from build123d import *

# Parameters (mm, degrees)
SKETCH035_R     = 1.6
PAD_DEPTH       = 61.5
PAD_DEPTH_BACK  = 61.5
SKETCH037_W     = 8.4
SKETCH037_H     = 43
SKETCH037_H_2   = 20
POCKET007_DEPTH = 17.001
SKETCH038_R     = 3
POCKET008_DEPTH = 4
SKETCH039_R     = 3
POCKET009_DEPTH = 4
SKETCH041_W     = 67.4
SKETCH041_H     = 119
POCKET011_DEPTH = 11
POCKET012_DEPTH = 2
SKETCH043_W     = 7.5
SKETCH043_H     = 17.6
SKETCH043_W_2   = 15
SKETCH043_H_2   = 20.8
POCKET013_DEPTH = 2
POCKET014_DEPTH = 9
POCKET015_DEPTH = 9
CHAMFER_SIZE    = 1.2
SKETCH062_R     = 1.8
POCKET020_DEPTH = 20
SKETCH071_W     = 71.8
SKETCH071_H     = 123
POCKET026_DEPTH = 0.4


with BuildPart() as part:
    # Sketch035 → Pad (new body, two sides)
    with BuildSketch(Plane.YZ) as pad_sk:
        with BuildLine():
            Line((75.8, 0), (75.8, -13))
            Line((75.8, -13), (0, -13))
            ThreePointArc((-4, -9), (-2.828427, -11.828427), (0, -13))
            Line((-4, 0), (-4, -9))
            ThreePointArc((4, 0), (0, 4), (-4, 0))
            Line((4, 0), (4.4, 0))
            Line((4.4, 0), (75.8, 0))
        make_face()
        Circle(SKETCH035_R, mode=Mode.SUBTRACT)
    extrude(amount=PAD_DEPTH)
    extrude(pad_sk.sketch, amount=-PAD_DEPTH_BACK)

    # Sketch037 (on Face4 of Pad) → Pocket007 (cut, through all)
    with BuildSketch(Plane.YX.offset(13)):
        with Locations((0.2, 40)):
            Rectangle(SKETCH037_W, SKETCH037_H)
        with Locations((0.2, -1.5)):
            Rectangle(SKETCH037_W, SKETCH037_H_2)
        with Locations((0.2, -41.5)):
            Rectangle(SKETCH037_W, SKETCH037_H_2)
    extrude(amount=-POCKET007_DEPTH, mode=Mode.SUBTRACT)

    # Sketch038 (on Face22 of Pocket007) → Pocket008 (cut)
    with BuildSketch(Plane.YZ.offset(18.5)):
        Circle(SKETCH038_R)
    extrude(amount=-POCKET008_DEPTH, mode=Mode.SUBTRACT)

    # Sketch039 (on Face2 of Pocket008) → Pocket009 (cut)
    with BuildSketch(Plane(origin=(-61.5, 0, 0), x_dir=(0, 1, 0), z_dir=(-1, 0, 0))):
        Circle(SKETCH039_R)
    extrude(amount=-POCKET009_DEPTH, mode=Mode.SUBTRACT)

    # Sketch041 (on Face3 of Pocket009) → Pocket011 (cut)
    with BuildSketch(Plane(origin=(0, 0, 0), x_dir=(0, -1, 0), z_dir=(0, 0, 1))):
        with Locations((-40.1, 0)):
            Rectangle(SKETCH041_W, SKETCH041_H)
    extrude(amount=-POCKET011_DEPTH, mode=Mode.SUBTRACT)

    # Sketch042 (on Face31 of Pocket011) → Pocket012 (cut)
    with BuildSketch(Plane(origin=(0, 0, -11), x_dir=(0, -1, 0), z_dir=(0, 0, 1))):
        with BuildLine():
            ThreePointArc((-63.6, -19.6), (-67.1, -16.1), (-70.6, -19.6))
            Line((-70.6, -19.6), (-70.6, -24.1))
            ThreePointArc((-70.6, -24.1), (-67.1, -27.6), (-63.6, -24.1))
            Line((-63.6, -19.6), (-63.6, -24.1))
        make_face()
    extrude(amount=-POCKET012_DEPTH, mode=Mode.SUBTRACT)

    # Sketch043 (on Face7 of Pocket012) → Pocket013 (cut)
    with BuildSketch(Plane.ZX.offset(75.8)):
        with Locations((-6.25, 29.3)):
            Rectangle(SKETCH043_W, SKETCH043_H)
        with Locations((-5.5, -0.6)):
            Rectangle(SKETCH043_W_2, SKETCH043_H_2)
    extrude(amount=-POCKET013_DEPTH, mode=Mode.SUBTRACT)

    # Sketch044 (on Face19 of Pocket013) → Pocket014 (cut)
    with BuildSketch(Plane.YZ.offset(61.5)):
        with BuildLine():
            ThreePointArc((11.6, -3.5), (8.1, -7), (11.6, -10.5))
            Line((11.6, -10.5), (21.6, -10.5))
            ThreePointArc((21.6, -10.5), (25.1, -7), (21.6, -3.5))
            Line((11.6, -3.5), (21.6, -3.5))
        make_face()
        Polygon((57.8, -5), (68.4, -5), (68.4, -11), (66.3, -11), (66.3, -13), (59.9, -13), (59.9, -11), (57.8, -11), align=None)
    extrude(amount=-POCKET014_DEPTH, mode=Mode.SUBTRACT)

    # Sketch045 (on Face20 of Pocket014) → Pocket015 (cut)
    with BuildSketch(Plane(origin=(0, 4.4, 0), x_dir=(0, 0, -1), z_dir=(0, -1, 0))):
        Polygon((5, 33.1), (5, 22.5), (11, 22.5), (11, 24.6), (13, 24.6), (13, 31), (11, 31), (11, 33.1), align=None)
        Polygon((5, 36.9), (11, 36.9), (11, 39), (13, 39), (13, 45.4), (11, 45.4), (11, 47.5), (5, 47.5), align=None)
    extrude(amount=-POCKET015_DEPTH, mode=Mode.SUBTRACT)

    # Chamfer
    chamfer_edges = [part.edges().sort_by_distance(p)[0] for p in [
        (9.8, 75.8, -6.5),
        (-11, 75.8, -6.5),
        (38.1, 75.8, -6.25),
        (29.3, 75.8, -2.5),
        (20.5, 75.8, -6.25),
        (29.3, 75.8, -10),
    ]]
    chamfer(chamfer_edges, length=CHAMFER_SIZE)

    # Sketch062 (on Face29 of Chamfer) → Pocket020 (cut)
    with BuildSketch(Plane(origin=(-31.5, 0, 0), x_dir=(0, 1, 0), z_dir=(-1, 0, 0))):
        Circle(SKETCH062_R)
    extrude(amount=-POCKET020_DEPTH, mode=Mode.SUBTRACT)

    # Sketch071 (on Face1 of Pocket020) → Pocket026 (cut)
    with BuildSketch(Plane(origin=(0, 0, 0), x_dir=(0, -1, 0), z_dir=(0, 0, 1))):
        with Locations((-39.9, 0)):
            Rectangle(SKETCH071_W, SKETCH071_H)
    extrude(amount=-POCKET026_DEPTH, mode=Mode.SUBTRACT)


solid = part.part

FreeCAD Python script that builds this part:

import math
import FreeCAD as App
import Part
import Sketcher
from FreeCAD import Vector
Q = App.Units.Quantity


def edges_at(feature, points):
    """Names of the edges that pass closest to the given points."""
    edges = feature.Shape.Edges
    near = lambda p: min(range(len(edges)), key=lambda i: edges[i].distToShape(Part.Vertex(*p))[0])
    return sorted({f"Edge{near(p) + 1}" for p in points})

doc = App.newDocument("Part")
body = doc.addObject("PartDesign::Body", "Body")

# Sketch on YZ plane
sketch1 = body.newObject("Sketcher::SketchObject", "Sketch")
sketch1.AttachmentSupport = (doc.getObject("YZ_Plane"), [""])
sketch1.MapMode = "FlatFace"
sketch1.addGeometry([
    Part.LineSegment(Vector(75.8, -13, 0), Vector(75.8, 0, 0)),  # 0
    Part.LineSegment(Vector(75.8, 0, 0), Vector(4, 0, 0)),  # 1
    Part.ArcOfCircle(Part.Circle(Vector(0, 0, 0), Vector(0, 0, 1), 4), math.radians(0), math.radians(180)),  # 2
    Part.LineSegment(Vector(-4, 0, 0), Vector(-4, -9, 0)),  # 3
    Part.ArcOfCircle(Part.Circle(Vector(0, -9, 0), Vector(0, 0, 1), 4), math.radians(-179.999994), math.radians(-90.000006)),  # 4
    Part.LineSegment(Vector(0, -13, 0), Vector(75.8, -13, 0)),  # 5
    Part.Circle(Vector(0, 0, 0), Vector(0, 0, 1), 1.6),  # 6
], False)
sketch1.addConstraint([
    Sketcher.Constraint("Coincident", 0, 2, 1, 1),
    Sketcher.Constraint("Coincident", 1, 2, 2, 1),
    Sketcher.Constraint("Tangent", 2, 2, 3, 1),
    Sketcher.Constraint("Tangent", 3, 2, 4, 1),
    Sketcher.Constraint("Tangent", 4, 2, 5, 1),
    Sketcher.Constraint("Coincident", 5, 2, 0, 1),
    Sketcher.Constraint("Vertical", 0),
    Sketcher.Constraint("Horizontal", 1),
    Sketcher.Constraint("Vertical", 3),
    Sketcher.Constraint("Horizontal", 5),
    Sketcher.Constraint("Coincident", 2, 3, -1, 1),
    Sketcher.Constraint("Coincident", 6, 3, -1, 1),
    Sketcher.Constraint("Equal", 2, 4),
    Sketcher.Constraint("PointOnObject", 0, 2, -1),
    Sketcher.Constraint("Radius", 2, Q("4 mm")),
    Sketcher.Constraint("Diameter", 6, Q("3.2 mm")),
    Sketcher.Constraint("DistanceY", 0, 1, 0, 2, Q("13 mm")),
    Sketcher.Constraint("DistanceX", 1, 2, 1, 1, Q("71.8 mm")),
])
pad1 = body.newObject("PartDesign::Pad", "Pad")
pad1.Profile = sketch1
pad1.Type = "TwoLengths"
pad1.Length = 61.5
pad1.Length2 = 61.5

# Sketch on XY plane
sketch2 = body.newObject("Sketcher::SketchObject", "Sketch001")
sketch2.AttachmentSupport = (doc.getObject("XY_Plane"), [""])
sketch2.MapMode = "FlatFace"
sketch2.AttachmentOffset = App.Placement(Vector(0, 0, -13), App.Rotation())
sketch2.addGeometry([
    Part.LineSegment(Vector(61.5, -4, 0), Vector(18.5, -4, 0)),  # 0
    Part.LineSegment(Vector(18.5, -4, 0), Vector(18.5, 4.4, 0)),  # 1
    Part.LineSegment(Vector(18.5, 4.4, 0), Vector(61.5, 4.4, 0)),  # 2
    Part.LineSegment(Vector(61.5, 4.4, 0), Vector(61.5, -4, 0)),  # 3
    Part.LineSegment(Vector(8.5, -4, 0), Vector(-11.5, -4, 0)),  # 4
    Part.LineSegment(Vector(-11.5, -4, 0), Vector(-11.5, 4.4, 0)),  # 5
    Part.LineSegment(Vector(-11.5, 4.4, 0), Vector(8.5, 4.4, 0)),  # 6
    Part.LineSegment(Vector(8.5, 4.4, 0), Vector(8.5, -4, 0)),  # 7
    Part.LineSegment(Vector(-31.5, -4, 0), Vector(-51.5, -4, 0)),  # 8
    Part.LineSegment(Vector(-51.5, -4, 0), Vector(-51.5, 4.4, 0)),  # 9
    Part.LineSegment(Vector(-51.5, 4.4, 0), Vector(-31.5, 4.4, 0)),  # 10
    Part.LineSegment(Vector(-31.5, 4.4, 0), Vector(-31.5, -4, 0)),  # 11
], False)
sketch2.addConstraint([
    Sketcher.Constraint("Coincident", 0, 2, 1, 1),
    Sketcher.Constraint("Coincident", 1, 2, 2, 1),
    Sketcher.Constraint("Coincident", 2, 2, 3, 1),
    Sketcher.Constraint("Coincident", 3, 2, 0, 1),
    Sketcher.Constraint("Coincident", 4, 2, 5, 1),
    Sketcher.Constraint("Coincident", 5, 2, 6, 1),
    Sketcher.Constraint("Coincident", 6, 2, 7, 1),
    Sketcher.Constraint("Coincident", 7, 2, 4, 1),
    Sketcher.Constraint("Coincident", 8, 2, 9, 1),
    Sketcher.Constraint("Coincident", 9, 2, 10, 1),
    Sketcher.Constraint("Coincident", 10, 2, 11, 1),
    Sketcher.Constraint("Coincident", 11, 2, 8, 1),
    Sketcher.Constraint("Horizontal", 0),
    Sketcher.Constraint("Vertical", 1),
    Sketcher.Constraint("Horizontal", 2),
    Sketcher.Constraint("Vertical", 3),
    Sketcher.Constraint("Horizontal", 4),
    Sketcher.Constraint("Vertical", 5),
    Sketcher.Constraint("Horizontal", 6),
    Sketcher.Constraint("Vertical", 7),
    Sketcher.Constraint("Horizontal", 8),
    Sketcher.Constraint("Vertical", 9),
    Sketcher.Constraint("Horizontal", 10),
    Sketcher.Constraint("Vertical", 11),
    Sketcher.Constraint("Horizontal", 3, 2, 4, 2),
    Sketcher.Constraint("Horizontal", 2, 2, 5, 2),
    Sketcher.Constraint("Horizontal", 7, 2, 8, 2),
    Sketcher.Constraint("Horizontal", 6, 2, 9, 2),
    Sketcher.Constraint("Equal", 6, 8),
    Sketcher.Constraint("DistanceX", 0, 2, 0, 1, Q("43 mm")),
    Sketcher.Constraint("DistanceX", 4, 2, 4, 1, Q("20 mm")),
    Sketcher.Constraint("DistanceY", 1, 1, 1, 2, Q("8.4 mm")),
    Sketcher.Constraint("DistanceY", 0, 2, -1, 1, Q("4 mm")),
    Sketcher.Constraint("DistanceX", 4, 2, 0, 2, Q("30 mm")),
    Sketcher.Constraint("DistanceX", 8, 2, 4, 2, Q("40 mm")),
    Sketcher.Constraint("DistanceX", -1, 1, 0, 2, Q("18.5 mm")),
])
pocket1 = body.newObject("PartDesign::Pocket", "Pocket")
pocket1.Profile = sketch2
pocket1.Type = "ThroughAll"
pocket1.Reversed = True

# Sketch on YZ plane
sketch3 = body.newObject("Sketcher::SketchObject", "Sketch002")
sketch3.AttachmentSupport = (doc.getObject("YZ_Plane"), [""])
sketch3.MapMode = "FlatFace"
sketch3.AttachmentOffset = App.Placement(Vector(0, 0, 18.5), App.Rotation())
sketch3.addGeometry(Part.Circle(Vector(0, 0, 0), Vector(0, 0, 1), 3), False)
sketch3.addConstraint([
    Sketcher.Constraint("Coincident", 0, 3, -1, 1),
    Sketcher.Constraint("Diameter", 0, Q("6 mm")),
])
pocket2 = body.newObject("PartDesign::Pocket", "Pocket001")
pocket2.Profile = sketch3
pocket2.Length = 4

# Sketch on YZ plane
sketch4 = body.newObject("Sketcher::SketchObject", "Sketch003")
sketch4.AttachmentSupport = (doc.getObject("YZ_Plane"), [""])
sketch4.MapMode = "FlatFace"
sketch4.AttachmentOffset = App.Placement(Vector(0, 0, -61.5), App.Rotation())
sketch4.addGeometry(Part.Circle(Vector(0, 0, 0), Vector(0, 0, 1), 3), False)
sketch4.addConstraint([
    Sketcher.Constraint("Coincident", 0, 3, -1, 1),
    Sketcher.Constraint("Diameter", 0, Q("6 mm")),
])
pocket3 = body.newObject("PartDesign::Pocket", "Pocket002")
pocket3.Profile = sketch4
pocket3.Length = 4
pocket3.Reversed = True

# Sketch on XY plane
sketch5 = body.newObject("Sketcher::SketchObject", "Sketch004")
sketch5.AttachmentSupport = (doc.getObject("XY_Plane"), [""])
sketch5.MapMode = "FlatFace"
sketch5.addGeometry([
    Part.LineSegment(Vector(59.5, 73.8, 0), Vector(-59.5, 73.8, 0)),
    Part.LineSegment(Vector(-59.5, 73.8, 0), Vector(-59.5, 6.4, 0)),
    Part.LineSegment(Vector(-59.5, 6.4, 0), Vector(59.5, 6.4, 0)),
    Part.LineSegment(Vector(59.5, 6.4, 0), Vector(59.5, 73.8, 0)),
], False)
sketch5.addConstraint([
    Sketcher.Constraint("Coincident", 0, 2, 1, 1),
    Sketcher.Constraint("Coincident", 1, 2, 2, 1),
    Sketcher.Constraint("Coincident", 2, 2, 3, 1),
    Sketcher.Constraint("Coincident", 3, 2, 0, 1),
    Sketcher.Constraint("Horizontal", 0),
    Sketcher.Constraint("Vertical", 1),
    Sketcher.Constraint("Horizontal", 2),
    Sketcher.Constraint("Vertical", 3),
    Sketcher.Constraint("DistanceX", 0, 2, 0, 1, Q("119 mm")),
    Sketcher.Constraint("DistanceY", 1, 2, 1, 1, Q("67.4 mm")),
    Sketcher.Constraint("DistanceX", 0, 2, -1, 1, Q("59.5 mm")),
    Sketcher.Constraint("DistanceY", -1, 1, 0, 2, Q("73.8 mm")),
])
pocket4 = body.newObject("PartDesign::Pocket", "Pocket003")
pocket4.Profile = sketch5
pocket4.Length = 11

# Sketch on XY plane
sketch6 = body.newObject("Sketcher::SketchObject", "Sketch005")
sketch6.AttachmentSupport = (doc.getObject("XY_Plane"), [""])
sketch6.MapMode = "FlatFace"
sketch6.AttachmentOffset = App.Placement(Vector(0, 0, -11), App.Rotation())
sketch6.addGeometry([
    Part.ArcOfCircle(Part.Circle(Vector(-19.6, 67.1, 0), Vector(0, 0, 1), 3.5), math.radians(-90), math.radians(90)),
    Part.LineSegment(Vector(-19.6, 70.6, 0), Vector(-24.1, 70.6, 0)),
    Part.ArcOfCircle(Part.Circle(Vector(-24.1, 67.1, 0), Vector(0, 0, 1), 3.5), math.radians(90), math.radians(270)),
    Part.LineSegment(Vector(-24.1, 63.6, 0), Vector(-19.6, 63.6, 0)),
], False)
sketch6.addConstraint([
    Sketcher.Constraint("Tangent", 0, 2, 1, 1),
    Sketcher.Constraint("Tangent", 1, 2, 2, 1),
    Sketcher.Constraint("Tangent", 2, 2, 3, 1),
    Sketcher.Constraint("Tangent", 3, 2, 0, 1),
    Sketcher.Constraint("Horizontal", 1),
    Sketcher.Constraint("Horizontal", 3),
    Sketcher.Constraint("Radius", 0, Q("3.5 mm")),
    Sketcher.Constraint("DistanceX", 1, 2, 1, 1, Q("4.5 mm")),
    Sketcher.Constraint("DistanceX", 0, 3, -1, 1, Q("19.6 mm")),
    Sketcher.Constraint("DistanceY", -1, 1, 0, 3, Q("67.1 mm")),
])
pocket5 = body.newObject("PartDesign::Pocket", "Pocket004")
pocket5.Profile = sketch6
pocket5.Length = 2

# Sketch on XZ plane
sketch7 = body.newObject("Sketcher::SketchObject", "Sketch006")
sketch7.AttachmentSupport = (doc.getObject("XZ_Plane"), [""])
sketch7.MapMode = "FlatFace"
sketch7.AttachmentOffset = App.Placement(Vector(0, 0, -75.8), App.Rotation())
sketch7.addGeometry([
    Part.LineSegment(Vector(38.1, -10, 0), Vector(20.5, -10, 0)),  # 0
    Part.LineSegment(Vector(20.5, -10, 0), Vector(20.5, -2.5, 0)),  # 1
    Part.LineSegment(Vector(20.5, -2.5, 0), Vector(38.1, -2.5, 0)),  # 2
    Part.LineSegment(Vector(38.1, -2.5, 0), Vector(38.1, -10, 0)),  # 3
    Part.LineSegment(Vector(9.8, -13, 0), Vector(-11, -13, 0)),  # 4
    Part.LineSegment(Vector(-11, -13, 0), Vector(-11, 2, 0)),  # 5
    Part.LineSegment(Vector(-11, 2, 0), Vector(9.8, 2, 0)),  # 6
    Part.LineSegment(Vector(9.8, 2, 0), Vector(9.8, -13, 0)),  # 7
], False)
sketch7.addConstraint([
    Sketcher.Constraint("Coincident", 0, 2, 1, 1),
    Sketcher.Constraint("Coincident", 1, 2, 2, 1),
    Sketcher.Constraint("Coincident", 2, 2, 3, 1),
    Sketcher.Constraint("Coincident", 3, 2, 0, 1),
    Sketcher.Constraint("Coincident", 4, 2, 5, 1),
    Sketcher.Constraint("Coincident", 5, 2, 6, 1),
    Sketcher.Constraint("Coincident", 6, 2, 7, 1),
    Sketcher.Constraint("Coincident", 7, 2, 4, 1),
    Sketcher.Constraint("Horizontal", 0),
    Sketcher.Constraint("Vertical", 1),
    Sketcher.Constraint("Horizontal", 2),
    Sketcher.Constraint("Vertical", 3),
    Sketcher.Constraint("Horizontal", 4),
    Sketcher.Constraint("Vertical", 5),
    Sketcher.Constraint("Horizontal", 6),
    Sketcher.Constraint("Vertical", 7),
    Sketcher.Constraint("DistanceY", 5, 1, 5, 2, Q("15 mm")),
    Sketcher.Constraint("DistanceX", 0, 2, 0, 1, Q("17.6 mm")),
    Sketcher.Constraint("DistanceX", 4, 2, 4, 1, Q("20.8 mm")),
    Sketcher.Constraint("DistanceY", 1, 1, 1, 2, Q("7.5 mm")),
    Sketcher.Constraint("DistanceY", 0, 2, -1, 1, Q("10 mm")),
    Sketcher.Constraint("DistanceX", 4, 2, -1, 1, Q("11 mm")),
    Sketcher.Constraint("DistanceY", 4, 2, -1, 1, Q("13 mm")),
    Sketcher.Constraint("DistanceX", -1, 1, 0, 2, Q("20.5 mm")),
])
pocket6 = body.newObject("PartDesign::Pocket", "Pocket005")
pocket6.Profile = sketch7
pocket6.Length = 2
pocket6.Reversed = True

# Sketch on YZ plane
sketch8 = body.newObject("Sketcher::SketchObject", "Sketch007")
sketch8.AttachmentSupport = (doc.getObject("YZ_Plane"), [""])
sketch8.MapMode = "FlatFace"
sketch8.AttachmentOffset = App.Placement(Vector(0, 0, 61.5), App.Rotation())
sketch8.addGeometry([
    Part.ArcOfCircle(Part.Circle(Vector(11.6, -7, 0), Vector(0, 0, 1), 3.5), math.radians(90), math.radians(270)),  # 0
    Part.LineSegment(Vector(11.6, -10.5, 0), Vector(21.6, -10.5, 0)),  # 1
    Part.ArcOfCircle(Part.Circle(Vector(21.6, -7, 0), Vector(0, 0, 1), 3.5), math.radians(-90), math.radians(90)),  # 2
    Part.LineSegment(Vector(21.6, -3.5, 0), Vector(11.6, -3.5, 0)),  # 3
    Part.LineSegment(Vector(68.4, -5, 0), Vector(57.8, -5, 0)),  # 4
    Part.LineSegment(Vector(57.8, -5, 0), Vector(57.8, -11, 0)),  # 5
    Part.LineSegment(Vector(57.8, -11, 0), Vector(59.9, -11, 0)),  # 6
    Part.LineSegment(Vector(59.9, -11, 0), Vector(59.9, -13, 0)),  # 7
    Part.LineSegment(Vector(59.9, -13, 0), Vector(66.3, -13, 0)),  # 8
    Part.LineSegment(Vector(66.3, -13, 0), Vector(66.3, -11, 0)),  # 9
    Part.LineSegment(Vector(66.3, -11, 0), Vector(68.4, -11, 0)),  # 10
    Part.LineSegment(Vector(68.4, -11, 0), Vector(68.4, -5, 0)),  # 11
], False)
sketch8.addConstraint([
    Sketcher.Constraint("Tangent", 0, 2, 1, 1),
    Sketcher.Constraint("Tangent", 1, 2, 2, 1),
    Sketcher.Constraint("Tangent", 2, 2, 3, 1),
    Sketcher.Constraint("Tangent", 3, 2, 0, 1),
    Sketcher.Constraint("Coincident", 4, 2, 5, 1),
    Sketcher.Constraint("Coincident", 5, 2, 6, 1),
    Sketcher.Constraint("Coincident", 6, 2, 7, 1),
    Sketcher.Constraint("Coincident", 7, 2, 8, 1),
    Sketcher.Constraint("Coincident", 8, 2, 9, 1),
    Sketcher.Constraint("Coincident", 9, 2, 10, 1),
    Sketcher.Constraint("Coincident", 10, 2, 11, 1),
    Sketcher.Constraint("Coincident", 11, 2, 4, 1),
    Sketcher.Constraint("Horizontal", 1),
    Sketcher.Constraint("Horizontal", 3),
    Sketcher.Constraint("Horizontal", 4),
    Sketcher.Constraint("Vertical", 5),
    Sketcher.Constraint("Horizontal", 6),
    Sketcher.Constraint("Vertical", 7),
    Sketcher.Constraint("Horizontal", 8),
    Sketcher.Constraint("Vertical", 9),
    Sketcher.Constraint("Horizontal", 10),
    Sketcher.Constraint("Vertical", 11),
    Sketcher.Constraint("Horizontal", 6, 2, 9, 2),
    Sketcher.Constraint("Equal", 6, 10),
    Sketcher.Constraint("Radius", 0, Q("3.5 mm")),
    Sketcher.Constraint("DistanceX", 1, 1, 1, 2, Q("10 mm")),
    Sketcher.Constraint("DistanceY", 5, 2, 5, 1, Q("6 mm")),
    Sketcher.Constraint("DistanceY", 7, 2, 7, 1, Q("2 mm")),
    Sketcher.Constraint("DistanceX", 4, 2, 4, 1, Q("10.6 mm")),
    Sketcher.Constraint("DistanceX", 6, 1, 6, 2, Q("2.1 mm")),
    Sketcher.Constraint("DistanceY", 0, 3, -1, 1, Q("7 mm")),
    Sketcher.Constraint("DistanceY", 4, 2, -1, 1, Q("5 mm")),
    Sketcher.Constraint("DistanceX", -1, 1, 0, 3, Q("11.6 mm")),
    Sketcher.Constraint("DistanceX", -1, 1, 4, 2, Q("57.8 mm")),
])
pocket7 = body.newObject("PartDesign::Pocket", "Pocket006")
pocket7.Profile = sketch8
pocket7.Length = 9

# Sketch on XZ plane
sketch9 = body.newObject("Sketcher::SketchObject", "Sketch008")
sketch9.AttachmentSupport = (doc.getObject("XZ_Plane"), [""])
sketch9.MapMode = "FlatFace"
sketch9.AttachmentOffset = App.Placement(Vector(0, 0, -4.4), App.Rotation())
sketch9.addGeometry([
    Part.LineSegment(Vector(33.1, -5, 0), Vector(22.5, -5, 0)),  # 0
    Part.LineSegment(Vector(22.5, -5, 0), Vector(22.5, -11, 0)),  # 1
    Part.LineSegment(Vector(22.5, -11, 0), Vector(24.6, -11, 0)),  # 2
    Part.LineSegment(Vector(24.6, -11, 0), Vector(24.6, -13, 0)),  # 3
    Part.LineSegment(Vector(24.6, -13, 0), Vector(31, -13, 0)),  # 4
    Part.LineSegment(Vector(31, -13, 0), Vector(31, -11, 0)),  # 5
    Part.LineSegment(Vector(31, -11, 0), Vector(33.1, -11, 0)),  # 6
    Part.LineSegment(Vector(33.1, -11, 0), Vector(33.1, -5, 0)),  # 7
    Part.LineSegment(Vector(36.9, -5, 0), Vector(36.9, -11, 0)),  # 8
    Part.LineSegment(Vector(36.9, -11, 0), Vector(39, -11, 0)),  # 9
    Part.LineSegment(Vector(39, -11, 0), Vector(39, -13, 0)),  # 10
    Part.LineSegment(Vector(39, -13, 0), Vector(45.4, -13, 0)),  # 11
    Part.LineSegment(Vector(45.4, -13, 0), Vector(45.4, -11, 0)),  # 12
    Part.LineSegment(Vector(45.4, -11, 0), Vector(47.5, -11, 0)),  # 13
    Part.LineSegment(Vector(47.5, -11, 0), Vector(47.5, -5, 0)),  # 14
    Part.LineSegment(Vector(47.5, -5, 0), Vector(36.9, -5, 0)),  # 15
], False)
sketch9.addConstraint([
    Sketcher.Constraint("Coincident", 0, 2, 1, 1),
    Sketcher.Constraint("Coincident", 1, 2, 2, 1),
    Sketcher.Constraint("Coincident", 2, 2, 3, 1),
    Sketcher.Constraint("Coincident", 3, 2, 4, 1),
    Sketcher.Constraint("Coincident", 4, 2, 5, 1),
    Sketcher.Constraint("Coincident", 5, 2, 6, 1),
    Sketcher.Constraint("Coincident", 6, 2, 7, 1),
    Sketcher.Constraint("Coincident", 7, 2, 0, 1),
    Sketcher.Constraint("Coincident", 8, 2, 9, 1),
    Sketcher.Constraint("Coincident", 9, 2, 10, 1),
    Sketcher.Constraint("Coincident", 10, 2, 11, 1),
    Sketcher.Constraint("Coincident", 11, 2, 12, 1),
    Sketcher.Constraint("Coincident", 12, 2, 13, 1),
    Sketcher.Constraint("Coincident", 13, 2, 14, 1),
    Sketcher.Constraint("Coincident", 14, 2, 15, 1),
    Sketcher.Constraint("Coincident", 15, 2, 8, 1),
    Sketcher.Constraint("Horizontal", 0),
    Sketcher.Constraint("Vertical", 1),
    Sketcher.Constraint("Horizontal", 2),
    Sketcher.Constraint("Vertical", 3),
    Sketcher.Constraint("Horizontal", 4),
    Sketcher.Constraint("Vertical", 5),
    Sketcher.Constraint("Horizontal", 6),
    Sketcher.Constraint("Vertical", 7),
    Sketcher.Constraint("Vertical", 8),
    Sketcher.Constraint("Horizontal", 9),
    Sketcher.Constraint("Vertical", 10),
    Sketcher.Constraint("Horizontal", 11),
    Sketcher.Constraint("Vertical", 12),
    Sketcher.Constraint("Horizontal", 13),
    Sketcher.Constraint("Vertical", 14),
    Sketcher.Constraint("Horizontal", 15),
    Sketcher.Constraint("Horizontal", 2, 2, 5, 2),
    Sketcher.Constraint("Horizontal", 6, 2, 8, 2),
    Sketcher.Constraint("Horizontal", 4, 2, 10, 2),
    Sketcher.Constraint("Horizontal", 9, 2, 12, 2),
    Sketcher.Constraint("Horizontal", 7, 2, 14, 2),
    Sketcher.Constraint("Equal", 2, 6),
    Sketcher.Constraint("Equal", 6, 9),
    Sketcher.Constraint("Equal", 4, 11),
    Sketcher.Constraint("Equal", 9, 13),
    Sketcher.Constraint("DistanceY", 1, 2, 1, 1, Q("6 mm")),
    Sketcher.Constraint("DistanceY", 3, 2, 3, 1, Q("2 mm")),
    Sketcher.Constraint("DistanceX", 0, 2, 0, 1, Q("10.6 mm")),
    Sketcher.Constraint("DistanceX", 2, 1, 2, 2, Q("2.1 mm")),
    Sketcher.Constraint("DistanceY", 0, 2, -1, 1, Q("5 mm")),
    Sketcher.Constraint("DistanceX", -1, 1, 4, 2, Q("31 mm")),
    Sketcher.Constraint("DistanceX", -1, 1, 9, 2, Q("39 mm")),
])
pocket8 = body.newObject("PartDesign::Pocket", "Pocket007")
pocket8.Profile = sketch9
pocket8.Length = 9
doc.recompute()

chamfer = body.newObject("PartDesign::Chamfer", "Chamfer")
chamfer.Base = (pocket8, edges_at(pocket8, [
    (9.8, 75.8, -6.5),
    (-11, 75.8, -6.5),
    (38.1, 75.8, -6.25),
    (29.3, 75.8, -2.5),
    (20.5, 75.8, -6.25),
    (29.3, 75.8, -10),
]))
chamfer.Size = 1.2

# Sketch on YZ plane
sketch10 = body.newObject("Sketcher::SketchObject", "Sketch009")
sketch10.AttachmentSupport = (doc.getObject("YZ_Plane"), [""])
sketch10.MapMode = "FlatFace"
sketch10.AttachmentOffset = App.Placement(Vector(0, 0, -31.5), App.Rotation())
sketch10.addGeometry(Part.Circle(Vector(0, 0, 0), Vector(0, 0, 1), 1.8), False)
sketch10.addConstraint([
    Sketcher.Constraint("Coincident", 0, 3, -1, 1),
    Sketcher.Constraint("Diameter", 0, Q("3.6 mm")),
])
pocket9 = body.newObject("PartDesign::Pocket", "Pocket008")
pocket9.Profile = sketch10
pocket9.Length = 20
pocket9.Reversed = True

# Sketch on XY plane
sketch11 = body.newObject("Sketcher::SketchObject", "Sketch010")
sketch11.AttachmentSupport = (doc.getObject("XY_Plane"), [""])
sketch11.MapMode = "FlatFace"
sketch11.addGeometry([
    Part.LineSegment(Vector(61.5, 75.8, 0), Vector(-61.5, 75.8, 0)),
    Part.LineSegment(Vector(-61.5, 75.8, 0), Vector(-61.5, 4, 0)),
    Part.LineSegment(Vector(-61.5, 4, 0), Vector(61.5, 4, 0)),
    Part.LineSegment(Vector(61.5, 4, 0), Vector(61.5, 75.8, 0)),
], False)
sketch11.addConstraint([
    Sketcher.Constraint("Coincident", 0, 2, 1, 1),
    Sketcher.Constraint("Coincident", 1, 2, 2, 1),
    Sketcher.Constraint("Coincident", 2, 2, 3, 1),
    Sketcher.Constraint("Coincident", 3, 2, 0, 1),
    Sketcher.Constraint("Horizontal", 0),
    Sketcher.Constraint("Vertical", 1),
    Sketcher.Constraint("Horizontal", 2),
    Sketcher.Constraint("Vertical", 3),
    Sketcher.Constraint("DistanceX", 0, 2, 0, 1, Q("123 mm")),
    Sketcher.Constraint("DistanceY", 1, 2, 1, 1, Q("71.8 mm")),
    Sketcher.Constraint("DistanceY", -1, 1, 1, 2, Q("4 mm")),
    Sketcher.Constraint("DistanceX", 0, 2, -1, 1, Q("61.5 mm")),
])
pocket10 = body.newObject("PartDesign::Pocket", "Pocket009")
pocket10.Profile = sketch11
pocket10.Length = 0.4

doc.recompute()
